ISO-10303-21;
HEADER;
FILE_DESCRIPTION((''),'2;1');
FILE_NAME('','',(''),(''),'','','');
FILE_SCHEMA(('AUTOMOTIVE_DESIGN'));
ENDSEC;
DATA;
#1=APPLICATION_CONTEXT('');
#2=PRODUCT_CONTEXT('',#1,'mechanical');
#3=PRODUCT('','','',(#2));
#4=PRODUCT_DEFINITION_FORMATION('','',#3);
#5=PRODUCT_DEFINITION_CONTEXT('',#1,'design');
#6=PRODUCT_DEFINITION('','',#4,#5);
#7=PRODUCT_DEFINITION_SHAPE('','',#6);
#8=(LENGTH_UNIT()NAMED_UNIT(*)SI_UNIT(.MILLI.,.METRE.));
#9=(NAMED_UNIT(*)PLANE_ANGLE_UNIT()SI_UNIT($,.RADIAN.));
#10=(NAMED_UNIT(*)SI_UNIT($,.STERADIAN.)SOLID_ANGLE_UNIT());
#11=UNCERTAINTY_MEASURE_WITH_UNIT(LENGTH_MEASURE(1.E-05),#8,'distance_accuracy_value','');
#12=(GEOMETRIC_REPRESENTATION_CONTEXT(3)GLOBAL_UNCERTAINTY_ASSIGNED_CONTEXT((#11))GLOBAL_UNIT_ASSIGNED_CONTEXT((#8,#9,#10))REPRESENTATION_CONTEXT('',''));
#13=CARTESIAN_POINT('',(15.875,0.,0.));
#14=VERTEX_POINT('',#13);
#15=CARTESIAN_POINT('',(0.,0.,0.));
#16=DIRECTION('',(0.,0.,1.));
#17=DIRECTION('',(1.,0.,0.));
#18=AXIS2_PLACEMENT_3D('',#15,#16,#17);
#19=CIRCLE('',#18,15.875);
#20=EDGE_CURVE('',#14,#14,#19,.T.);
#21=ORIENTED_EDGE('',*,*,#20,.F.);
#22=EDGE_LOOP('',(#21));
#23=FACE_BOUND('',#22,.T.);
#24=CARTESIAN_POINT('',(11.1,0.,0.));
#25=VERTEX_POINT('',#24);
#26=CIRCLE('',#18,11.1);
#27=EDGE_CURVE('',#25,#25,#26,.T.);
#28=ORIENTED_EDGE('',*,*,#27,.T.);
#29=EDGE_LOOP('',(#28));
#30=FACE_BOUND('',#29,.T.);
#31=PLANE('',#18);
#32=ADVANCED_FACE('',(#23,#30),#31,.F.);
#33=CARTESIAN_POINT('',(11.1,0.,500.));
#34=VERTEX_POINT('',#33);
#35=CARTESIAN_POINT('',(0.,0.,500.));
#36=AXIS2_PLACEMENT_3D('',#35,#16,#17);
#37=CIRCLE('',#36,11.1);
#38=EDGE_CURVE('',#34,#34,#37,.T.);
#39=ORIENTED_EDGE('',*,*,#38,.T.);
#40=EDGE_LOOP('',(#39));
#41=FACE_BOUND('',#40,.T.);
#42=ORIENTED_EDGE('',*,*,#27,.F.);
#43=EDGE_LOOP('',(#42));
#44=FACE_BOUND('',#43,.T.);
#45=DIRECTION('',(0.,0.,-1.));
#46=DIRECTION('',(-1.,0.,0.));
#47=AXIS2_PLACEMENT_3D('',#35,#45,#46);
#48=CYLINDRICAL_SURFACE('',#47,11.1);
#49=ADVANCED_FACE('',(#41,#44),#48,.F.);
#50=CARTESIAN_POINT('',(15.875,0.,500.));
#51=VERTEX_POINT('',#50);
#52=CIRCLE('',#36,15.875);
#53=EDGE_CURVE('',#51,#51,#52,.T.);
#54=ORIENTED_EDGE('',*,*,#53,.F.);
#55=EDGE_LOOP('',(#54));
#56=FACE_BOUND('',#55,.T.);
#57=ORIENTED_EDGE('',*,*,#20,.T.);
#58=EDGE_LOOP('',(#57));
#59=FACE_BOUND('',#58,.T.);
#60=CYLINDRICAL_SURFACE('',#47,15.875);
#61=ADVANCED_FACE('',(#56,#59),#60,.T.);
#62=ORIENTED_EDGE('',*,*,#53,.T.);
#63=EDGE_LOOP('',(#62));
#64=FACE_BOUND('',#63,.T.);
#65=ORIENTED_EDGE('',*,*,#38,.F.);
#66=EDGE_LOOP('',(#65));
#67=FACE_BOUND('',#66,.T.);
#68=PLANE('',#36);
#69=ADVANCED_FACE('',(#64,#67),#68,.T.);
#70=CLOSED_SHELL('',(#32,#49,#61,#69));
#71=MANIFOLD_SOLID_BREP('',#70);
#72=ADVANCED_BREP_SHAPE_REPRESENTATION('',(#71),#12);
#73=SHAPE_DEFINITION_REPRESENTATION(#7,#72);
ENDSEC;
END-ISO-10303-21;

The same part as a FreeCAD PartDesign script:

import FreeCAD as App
import Part
import Sketcher
Q = App.Units.Quantity

doc = App.newDocument("Part")
params = doc.addObject("Spreadsheet::Sheet", "Params")
for row, (alias, value) in enumerate([
    ("sketch1_diameter", "22.2 mm"),
    ("sketch1_diameter2", "31.75 mm"),
    ("pad1_length", "500 mm"),
], start=1):
    params.set(f"A{row}", alias)
    params.set(f"B{row}", "=" + value)
    params.setAlias(f"B{row}", alias)

body = doc.addObject("PartDesign::Body", "Body")

sketch1 = body.newObject("Sketcher::SketchObject", "Sketch")
sketch1.AttachmentSupport = (doc.getObject("XY_Plane"), [""])
sketch1.MapMode = "FlatFace"
sketch1.addGeometry([
    Part.Circle(App.Vector(0, 0, 0), App.Vector(0, 0, 1), 16),
    Part.Circle(App.Vector(0, 0, 0), App.Vector(0, 0, 1), 11),
], False)
sketch1.addConstraint([
    Sketcher.Constraint("Coincident", 0, 3, -1, 1),
    Sketcher.Constraint("Coincident", 1, 3, -1, 1),
    Sketcher.Constraint("Diameter", 1, Q("22.2 mm")),
    Sketcher.Constraint("Diameter", 0, Q("31.75 mm")),
])
sketch1.setExpression("Constraints[2]", "Params.sketch1_diameter")
sketch1.setExpression("Constraints[3]", "Params.sketch1_diameter2")
pad1 = body.newObject("PartDesign::Pad", "Pad")
pad1.Profile = sketch1
pad1.setExpression("Length", "Params.pad1_length")

doc.recompute()
